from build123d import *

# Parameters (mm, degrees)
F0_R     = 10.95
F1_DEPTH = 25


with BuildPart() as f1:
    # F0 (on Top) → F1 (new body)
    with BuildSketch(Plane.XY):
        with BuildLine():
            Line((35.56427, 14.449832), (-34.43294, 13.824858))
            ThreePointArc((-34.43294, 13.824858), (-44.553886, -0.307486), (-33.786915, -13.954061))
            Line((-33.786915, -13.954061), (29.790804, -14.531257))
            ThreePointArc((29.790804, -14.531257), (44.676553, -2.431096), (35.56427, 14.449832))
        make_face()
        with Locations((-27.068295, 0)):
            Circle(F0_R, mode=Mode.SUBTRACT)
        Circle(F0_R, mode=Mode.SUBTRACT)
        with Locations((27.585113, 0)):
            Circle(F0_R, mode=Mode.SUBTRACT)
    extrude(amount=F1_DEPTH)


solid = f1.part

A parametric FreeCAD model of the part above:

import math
import FreeCAD as App
import Part
import Sketcher

V = App.Vector

doc = App.newDocument("Part")
params = doc.addObject("Spreadsheet::Sheet", "Params")
for row, (alias, value) in enumerate([
    ("sketch1_diameter", "21.9 mm"),
    ("sketch1_length", "70 mm"),
    ("pad1_length", "25 mm"),
], start=1):
    params.set(f"A{row}", alias)
    params.set(f"B{row}", "=" + value)
    params.setAlias(f"B{row}", alias)

body = doc.addObject("PartDesign::Body", "Body")

sketch1 = body.newObject("Sketcher::SketchObject", "Sketch")
sketch1.AttachmentSupport = (doc.getObject("XY_Plane"), [""])
sketch1.MapMode = "FlatFace"
sketch1.addGeometry([
    Part.LineSegment(V(36, 14, 0), V(-34, 14, 0)),
    Part.ArcOfCircle(Part.Circle(V(-30, 0, 0), V(0, 0, 1), 14), math.radians(107), math.radians(255)),
    Part.LineSegment(V(-34, -14, 0), V(30, -15, 0)),
    Part.ArcOfCircle(Part.Circle(V(30, 1, 0), V(0, 0, 1), 15), math.radians(-91), math.radians(68)),
    Part.Circle(V(-27, 0, 0), V(0, 0, 1), 11),
    Part.Circle(V(0, 0, 0), V(0, 0, 1), 11),
    Part.Circle(V(28, 0, 0), V(0, 0, 1), 11),
], False)
sketch1.addConstraint([
    Sketcher.Constraint("Coincident", 0, 2, 1, 1),
    Sketcher.Constraint("Coincident", 1, 2, 2, 1),
    Sketcher.Constraint("Tangent", 2, 2, 3, 1),
    Sketcher.Constraint("Coincident", 3, 2, 0, 1),
    Sketcher.Constraint("Coincident", 5, 3, -1, 1),
    Sketcher.Constraint("Equal", 4, 5),
    Sketcher.Constraint("Equal", 5, 6),
    Sketcher.Constraint("PointOnObject", 4, 3, -1),
    Sketcher.Constraint("PointOnObject", 6, 3, -1),
    Sketcher.Constraint("Diameter", 4, 21.9),
    Sketcher.Constraint("Distance", 0, 70.0),
    Sketcher.Constraint("Radius", 1, 14.46171),
    Sketcher.Constraint("DistanceY", 2, 2, 1, 3, 14.560001),
    Sketcher.Constraint("Radius", 3, 15.039046),
    Sketcher.Constraint("DistanceX", 4, 3, 2, 2, 56.859099),
    Sketcher.Constraint("Distance", 2, 63.580339),
    Sketcher.Constraint("DistanceY", -1, 1, 3, 3, 0.507169),
    Sketcher.Constraint("DistanceX", 0, 2, -1, 1, 34.43294),
    Sketcher.Constraint("DistanceY", -1, 1, 0, 2, 13.824858),
    Sketcher.Constraint("DistanceY", 1, 2, -1, 1, 13.954061),
    Sketcher.Constraint("DistanceX", 6, 3, 3, 3, 2.34222),
])
sketch1.setExpression("Constraints[9]", "Params.sketch1_diameter")
sketch1.setExpression("Constraints[10]", "Params.sketch1_length")
pad1 = body.newObject("PartDesign::Pad", "Pad")
pad1.Profile = sketch1
pad1.setExpression("Length", "Params.pad1_length")

doc.recompute()
